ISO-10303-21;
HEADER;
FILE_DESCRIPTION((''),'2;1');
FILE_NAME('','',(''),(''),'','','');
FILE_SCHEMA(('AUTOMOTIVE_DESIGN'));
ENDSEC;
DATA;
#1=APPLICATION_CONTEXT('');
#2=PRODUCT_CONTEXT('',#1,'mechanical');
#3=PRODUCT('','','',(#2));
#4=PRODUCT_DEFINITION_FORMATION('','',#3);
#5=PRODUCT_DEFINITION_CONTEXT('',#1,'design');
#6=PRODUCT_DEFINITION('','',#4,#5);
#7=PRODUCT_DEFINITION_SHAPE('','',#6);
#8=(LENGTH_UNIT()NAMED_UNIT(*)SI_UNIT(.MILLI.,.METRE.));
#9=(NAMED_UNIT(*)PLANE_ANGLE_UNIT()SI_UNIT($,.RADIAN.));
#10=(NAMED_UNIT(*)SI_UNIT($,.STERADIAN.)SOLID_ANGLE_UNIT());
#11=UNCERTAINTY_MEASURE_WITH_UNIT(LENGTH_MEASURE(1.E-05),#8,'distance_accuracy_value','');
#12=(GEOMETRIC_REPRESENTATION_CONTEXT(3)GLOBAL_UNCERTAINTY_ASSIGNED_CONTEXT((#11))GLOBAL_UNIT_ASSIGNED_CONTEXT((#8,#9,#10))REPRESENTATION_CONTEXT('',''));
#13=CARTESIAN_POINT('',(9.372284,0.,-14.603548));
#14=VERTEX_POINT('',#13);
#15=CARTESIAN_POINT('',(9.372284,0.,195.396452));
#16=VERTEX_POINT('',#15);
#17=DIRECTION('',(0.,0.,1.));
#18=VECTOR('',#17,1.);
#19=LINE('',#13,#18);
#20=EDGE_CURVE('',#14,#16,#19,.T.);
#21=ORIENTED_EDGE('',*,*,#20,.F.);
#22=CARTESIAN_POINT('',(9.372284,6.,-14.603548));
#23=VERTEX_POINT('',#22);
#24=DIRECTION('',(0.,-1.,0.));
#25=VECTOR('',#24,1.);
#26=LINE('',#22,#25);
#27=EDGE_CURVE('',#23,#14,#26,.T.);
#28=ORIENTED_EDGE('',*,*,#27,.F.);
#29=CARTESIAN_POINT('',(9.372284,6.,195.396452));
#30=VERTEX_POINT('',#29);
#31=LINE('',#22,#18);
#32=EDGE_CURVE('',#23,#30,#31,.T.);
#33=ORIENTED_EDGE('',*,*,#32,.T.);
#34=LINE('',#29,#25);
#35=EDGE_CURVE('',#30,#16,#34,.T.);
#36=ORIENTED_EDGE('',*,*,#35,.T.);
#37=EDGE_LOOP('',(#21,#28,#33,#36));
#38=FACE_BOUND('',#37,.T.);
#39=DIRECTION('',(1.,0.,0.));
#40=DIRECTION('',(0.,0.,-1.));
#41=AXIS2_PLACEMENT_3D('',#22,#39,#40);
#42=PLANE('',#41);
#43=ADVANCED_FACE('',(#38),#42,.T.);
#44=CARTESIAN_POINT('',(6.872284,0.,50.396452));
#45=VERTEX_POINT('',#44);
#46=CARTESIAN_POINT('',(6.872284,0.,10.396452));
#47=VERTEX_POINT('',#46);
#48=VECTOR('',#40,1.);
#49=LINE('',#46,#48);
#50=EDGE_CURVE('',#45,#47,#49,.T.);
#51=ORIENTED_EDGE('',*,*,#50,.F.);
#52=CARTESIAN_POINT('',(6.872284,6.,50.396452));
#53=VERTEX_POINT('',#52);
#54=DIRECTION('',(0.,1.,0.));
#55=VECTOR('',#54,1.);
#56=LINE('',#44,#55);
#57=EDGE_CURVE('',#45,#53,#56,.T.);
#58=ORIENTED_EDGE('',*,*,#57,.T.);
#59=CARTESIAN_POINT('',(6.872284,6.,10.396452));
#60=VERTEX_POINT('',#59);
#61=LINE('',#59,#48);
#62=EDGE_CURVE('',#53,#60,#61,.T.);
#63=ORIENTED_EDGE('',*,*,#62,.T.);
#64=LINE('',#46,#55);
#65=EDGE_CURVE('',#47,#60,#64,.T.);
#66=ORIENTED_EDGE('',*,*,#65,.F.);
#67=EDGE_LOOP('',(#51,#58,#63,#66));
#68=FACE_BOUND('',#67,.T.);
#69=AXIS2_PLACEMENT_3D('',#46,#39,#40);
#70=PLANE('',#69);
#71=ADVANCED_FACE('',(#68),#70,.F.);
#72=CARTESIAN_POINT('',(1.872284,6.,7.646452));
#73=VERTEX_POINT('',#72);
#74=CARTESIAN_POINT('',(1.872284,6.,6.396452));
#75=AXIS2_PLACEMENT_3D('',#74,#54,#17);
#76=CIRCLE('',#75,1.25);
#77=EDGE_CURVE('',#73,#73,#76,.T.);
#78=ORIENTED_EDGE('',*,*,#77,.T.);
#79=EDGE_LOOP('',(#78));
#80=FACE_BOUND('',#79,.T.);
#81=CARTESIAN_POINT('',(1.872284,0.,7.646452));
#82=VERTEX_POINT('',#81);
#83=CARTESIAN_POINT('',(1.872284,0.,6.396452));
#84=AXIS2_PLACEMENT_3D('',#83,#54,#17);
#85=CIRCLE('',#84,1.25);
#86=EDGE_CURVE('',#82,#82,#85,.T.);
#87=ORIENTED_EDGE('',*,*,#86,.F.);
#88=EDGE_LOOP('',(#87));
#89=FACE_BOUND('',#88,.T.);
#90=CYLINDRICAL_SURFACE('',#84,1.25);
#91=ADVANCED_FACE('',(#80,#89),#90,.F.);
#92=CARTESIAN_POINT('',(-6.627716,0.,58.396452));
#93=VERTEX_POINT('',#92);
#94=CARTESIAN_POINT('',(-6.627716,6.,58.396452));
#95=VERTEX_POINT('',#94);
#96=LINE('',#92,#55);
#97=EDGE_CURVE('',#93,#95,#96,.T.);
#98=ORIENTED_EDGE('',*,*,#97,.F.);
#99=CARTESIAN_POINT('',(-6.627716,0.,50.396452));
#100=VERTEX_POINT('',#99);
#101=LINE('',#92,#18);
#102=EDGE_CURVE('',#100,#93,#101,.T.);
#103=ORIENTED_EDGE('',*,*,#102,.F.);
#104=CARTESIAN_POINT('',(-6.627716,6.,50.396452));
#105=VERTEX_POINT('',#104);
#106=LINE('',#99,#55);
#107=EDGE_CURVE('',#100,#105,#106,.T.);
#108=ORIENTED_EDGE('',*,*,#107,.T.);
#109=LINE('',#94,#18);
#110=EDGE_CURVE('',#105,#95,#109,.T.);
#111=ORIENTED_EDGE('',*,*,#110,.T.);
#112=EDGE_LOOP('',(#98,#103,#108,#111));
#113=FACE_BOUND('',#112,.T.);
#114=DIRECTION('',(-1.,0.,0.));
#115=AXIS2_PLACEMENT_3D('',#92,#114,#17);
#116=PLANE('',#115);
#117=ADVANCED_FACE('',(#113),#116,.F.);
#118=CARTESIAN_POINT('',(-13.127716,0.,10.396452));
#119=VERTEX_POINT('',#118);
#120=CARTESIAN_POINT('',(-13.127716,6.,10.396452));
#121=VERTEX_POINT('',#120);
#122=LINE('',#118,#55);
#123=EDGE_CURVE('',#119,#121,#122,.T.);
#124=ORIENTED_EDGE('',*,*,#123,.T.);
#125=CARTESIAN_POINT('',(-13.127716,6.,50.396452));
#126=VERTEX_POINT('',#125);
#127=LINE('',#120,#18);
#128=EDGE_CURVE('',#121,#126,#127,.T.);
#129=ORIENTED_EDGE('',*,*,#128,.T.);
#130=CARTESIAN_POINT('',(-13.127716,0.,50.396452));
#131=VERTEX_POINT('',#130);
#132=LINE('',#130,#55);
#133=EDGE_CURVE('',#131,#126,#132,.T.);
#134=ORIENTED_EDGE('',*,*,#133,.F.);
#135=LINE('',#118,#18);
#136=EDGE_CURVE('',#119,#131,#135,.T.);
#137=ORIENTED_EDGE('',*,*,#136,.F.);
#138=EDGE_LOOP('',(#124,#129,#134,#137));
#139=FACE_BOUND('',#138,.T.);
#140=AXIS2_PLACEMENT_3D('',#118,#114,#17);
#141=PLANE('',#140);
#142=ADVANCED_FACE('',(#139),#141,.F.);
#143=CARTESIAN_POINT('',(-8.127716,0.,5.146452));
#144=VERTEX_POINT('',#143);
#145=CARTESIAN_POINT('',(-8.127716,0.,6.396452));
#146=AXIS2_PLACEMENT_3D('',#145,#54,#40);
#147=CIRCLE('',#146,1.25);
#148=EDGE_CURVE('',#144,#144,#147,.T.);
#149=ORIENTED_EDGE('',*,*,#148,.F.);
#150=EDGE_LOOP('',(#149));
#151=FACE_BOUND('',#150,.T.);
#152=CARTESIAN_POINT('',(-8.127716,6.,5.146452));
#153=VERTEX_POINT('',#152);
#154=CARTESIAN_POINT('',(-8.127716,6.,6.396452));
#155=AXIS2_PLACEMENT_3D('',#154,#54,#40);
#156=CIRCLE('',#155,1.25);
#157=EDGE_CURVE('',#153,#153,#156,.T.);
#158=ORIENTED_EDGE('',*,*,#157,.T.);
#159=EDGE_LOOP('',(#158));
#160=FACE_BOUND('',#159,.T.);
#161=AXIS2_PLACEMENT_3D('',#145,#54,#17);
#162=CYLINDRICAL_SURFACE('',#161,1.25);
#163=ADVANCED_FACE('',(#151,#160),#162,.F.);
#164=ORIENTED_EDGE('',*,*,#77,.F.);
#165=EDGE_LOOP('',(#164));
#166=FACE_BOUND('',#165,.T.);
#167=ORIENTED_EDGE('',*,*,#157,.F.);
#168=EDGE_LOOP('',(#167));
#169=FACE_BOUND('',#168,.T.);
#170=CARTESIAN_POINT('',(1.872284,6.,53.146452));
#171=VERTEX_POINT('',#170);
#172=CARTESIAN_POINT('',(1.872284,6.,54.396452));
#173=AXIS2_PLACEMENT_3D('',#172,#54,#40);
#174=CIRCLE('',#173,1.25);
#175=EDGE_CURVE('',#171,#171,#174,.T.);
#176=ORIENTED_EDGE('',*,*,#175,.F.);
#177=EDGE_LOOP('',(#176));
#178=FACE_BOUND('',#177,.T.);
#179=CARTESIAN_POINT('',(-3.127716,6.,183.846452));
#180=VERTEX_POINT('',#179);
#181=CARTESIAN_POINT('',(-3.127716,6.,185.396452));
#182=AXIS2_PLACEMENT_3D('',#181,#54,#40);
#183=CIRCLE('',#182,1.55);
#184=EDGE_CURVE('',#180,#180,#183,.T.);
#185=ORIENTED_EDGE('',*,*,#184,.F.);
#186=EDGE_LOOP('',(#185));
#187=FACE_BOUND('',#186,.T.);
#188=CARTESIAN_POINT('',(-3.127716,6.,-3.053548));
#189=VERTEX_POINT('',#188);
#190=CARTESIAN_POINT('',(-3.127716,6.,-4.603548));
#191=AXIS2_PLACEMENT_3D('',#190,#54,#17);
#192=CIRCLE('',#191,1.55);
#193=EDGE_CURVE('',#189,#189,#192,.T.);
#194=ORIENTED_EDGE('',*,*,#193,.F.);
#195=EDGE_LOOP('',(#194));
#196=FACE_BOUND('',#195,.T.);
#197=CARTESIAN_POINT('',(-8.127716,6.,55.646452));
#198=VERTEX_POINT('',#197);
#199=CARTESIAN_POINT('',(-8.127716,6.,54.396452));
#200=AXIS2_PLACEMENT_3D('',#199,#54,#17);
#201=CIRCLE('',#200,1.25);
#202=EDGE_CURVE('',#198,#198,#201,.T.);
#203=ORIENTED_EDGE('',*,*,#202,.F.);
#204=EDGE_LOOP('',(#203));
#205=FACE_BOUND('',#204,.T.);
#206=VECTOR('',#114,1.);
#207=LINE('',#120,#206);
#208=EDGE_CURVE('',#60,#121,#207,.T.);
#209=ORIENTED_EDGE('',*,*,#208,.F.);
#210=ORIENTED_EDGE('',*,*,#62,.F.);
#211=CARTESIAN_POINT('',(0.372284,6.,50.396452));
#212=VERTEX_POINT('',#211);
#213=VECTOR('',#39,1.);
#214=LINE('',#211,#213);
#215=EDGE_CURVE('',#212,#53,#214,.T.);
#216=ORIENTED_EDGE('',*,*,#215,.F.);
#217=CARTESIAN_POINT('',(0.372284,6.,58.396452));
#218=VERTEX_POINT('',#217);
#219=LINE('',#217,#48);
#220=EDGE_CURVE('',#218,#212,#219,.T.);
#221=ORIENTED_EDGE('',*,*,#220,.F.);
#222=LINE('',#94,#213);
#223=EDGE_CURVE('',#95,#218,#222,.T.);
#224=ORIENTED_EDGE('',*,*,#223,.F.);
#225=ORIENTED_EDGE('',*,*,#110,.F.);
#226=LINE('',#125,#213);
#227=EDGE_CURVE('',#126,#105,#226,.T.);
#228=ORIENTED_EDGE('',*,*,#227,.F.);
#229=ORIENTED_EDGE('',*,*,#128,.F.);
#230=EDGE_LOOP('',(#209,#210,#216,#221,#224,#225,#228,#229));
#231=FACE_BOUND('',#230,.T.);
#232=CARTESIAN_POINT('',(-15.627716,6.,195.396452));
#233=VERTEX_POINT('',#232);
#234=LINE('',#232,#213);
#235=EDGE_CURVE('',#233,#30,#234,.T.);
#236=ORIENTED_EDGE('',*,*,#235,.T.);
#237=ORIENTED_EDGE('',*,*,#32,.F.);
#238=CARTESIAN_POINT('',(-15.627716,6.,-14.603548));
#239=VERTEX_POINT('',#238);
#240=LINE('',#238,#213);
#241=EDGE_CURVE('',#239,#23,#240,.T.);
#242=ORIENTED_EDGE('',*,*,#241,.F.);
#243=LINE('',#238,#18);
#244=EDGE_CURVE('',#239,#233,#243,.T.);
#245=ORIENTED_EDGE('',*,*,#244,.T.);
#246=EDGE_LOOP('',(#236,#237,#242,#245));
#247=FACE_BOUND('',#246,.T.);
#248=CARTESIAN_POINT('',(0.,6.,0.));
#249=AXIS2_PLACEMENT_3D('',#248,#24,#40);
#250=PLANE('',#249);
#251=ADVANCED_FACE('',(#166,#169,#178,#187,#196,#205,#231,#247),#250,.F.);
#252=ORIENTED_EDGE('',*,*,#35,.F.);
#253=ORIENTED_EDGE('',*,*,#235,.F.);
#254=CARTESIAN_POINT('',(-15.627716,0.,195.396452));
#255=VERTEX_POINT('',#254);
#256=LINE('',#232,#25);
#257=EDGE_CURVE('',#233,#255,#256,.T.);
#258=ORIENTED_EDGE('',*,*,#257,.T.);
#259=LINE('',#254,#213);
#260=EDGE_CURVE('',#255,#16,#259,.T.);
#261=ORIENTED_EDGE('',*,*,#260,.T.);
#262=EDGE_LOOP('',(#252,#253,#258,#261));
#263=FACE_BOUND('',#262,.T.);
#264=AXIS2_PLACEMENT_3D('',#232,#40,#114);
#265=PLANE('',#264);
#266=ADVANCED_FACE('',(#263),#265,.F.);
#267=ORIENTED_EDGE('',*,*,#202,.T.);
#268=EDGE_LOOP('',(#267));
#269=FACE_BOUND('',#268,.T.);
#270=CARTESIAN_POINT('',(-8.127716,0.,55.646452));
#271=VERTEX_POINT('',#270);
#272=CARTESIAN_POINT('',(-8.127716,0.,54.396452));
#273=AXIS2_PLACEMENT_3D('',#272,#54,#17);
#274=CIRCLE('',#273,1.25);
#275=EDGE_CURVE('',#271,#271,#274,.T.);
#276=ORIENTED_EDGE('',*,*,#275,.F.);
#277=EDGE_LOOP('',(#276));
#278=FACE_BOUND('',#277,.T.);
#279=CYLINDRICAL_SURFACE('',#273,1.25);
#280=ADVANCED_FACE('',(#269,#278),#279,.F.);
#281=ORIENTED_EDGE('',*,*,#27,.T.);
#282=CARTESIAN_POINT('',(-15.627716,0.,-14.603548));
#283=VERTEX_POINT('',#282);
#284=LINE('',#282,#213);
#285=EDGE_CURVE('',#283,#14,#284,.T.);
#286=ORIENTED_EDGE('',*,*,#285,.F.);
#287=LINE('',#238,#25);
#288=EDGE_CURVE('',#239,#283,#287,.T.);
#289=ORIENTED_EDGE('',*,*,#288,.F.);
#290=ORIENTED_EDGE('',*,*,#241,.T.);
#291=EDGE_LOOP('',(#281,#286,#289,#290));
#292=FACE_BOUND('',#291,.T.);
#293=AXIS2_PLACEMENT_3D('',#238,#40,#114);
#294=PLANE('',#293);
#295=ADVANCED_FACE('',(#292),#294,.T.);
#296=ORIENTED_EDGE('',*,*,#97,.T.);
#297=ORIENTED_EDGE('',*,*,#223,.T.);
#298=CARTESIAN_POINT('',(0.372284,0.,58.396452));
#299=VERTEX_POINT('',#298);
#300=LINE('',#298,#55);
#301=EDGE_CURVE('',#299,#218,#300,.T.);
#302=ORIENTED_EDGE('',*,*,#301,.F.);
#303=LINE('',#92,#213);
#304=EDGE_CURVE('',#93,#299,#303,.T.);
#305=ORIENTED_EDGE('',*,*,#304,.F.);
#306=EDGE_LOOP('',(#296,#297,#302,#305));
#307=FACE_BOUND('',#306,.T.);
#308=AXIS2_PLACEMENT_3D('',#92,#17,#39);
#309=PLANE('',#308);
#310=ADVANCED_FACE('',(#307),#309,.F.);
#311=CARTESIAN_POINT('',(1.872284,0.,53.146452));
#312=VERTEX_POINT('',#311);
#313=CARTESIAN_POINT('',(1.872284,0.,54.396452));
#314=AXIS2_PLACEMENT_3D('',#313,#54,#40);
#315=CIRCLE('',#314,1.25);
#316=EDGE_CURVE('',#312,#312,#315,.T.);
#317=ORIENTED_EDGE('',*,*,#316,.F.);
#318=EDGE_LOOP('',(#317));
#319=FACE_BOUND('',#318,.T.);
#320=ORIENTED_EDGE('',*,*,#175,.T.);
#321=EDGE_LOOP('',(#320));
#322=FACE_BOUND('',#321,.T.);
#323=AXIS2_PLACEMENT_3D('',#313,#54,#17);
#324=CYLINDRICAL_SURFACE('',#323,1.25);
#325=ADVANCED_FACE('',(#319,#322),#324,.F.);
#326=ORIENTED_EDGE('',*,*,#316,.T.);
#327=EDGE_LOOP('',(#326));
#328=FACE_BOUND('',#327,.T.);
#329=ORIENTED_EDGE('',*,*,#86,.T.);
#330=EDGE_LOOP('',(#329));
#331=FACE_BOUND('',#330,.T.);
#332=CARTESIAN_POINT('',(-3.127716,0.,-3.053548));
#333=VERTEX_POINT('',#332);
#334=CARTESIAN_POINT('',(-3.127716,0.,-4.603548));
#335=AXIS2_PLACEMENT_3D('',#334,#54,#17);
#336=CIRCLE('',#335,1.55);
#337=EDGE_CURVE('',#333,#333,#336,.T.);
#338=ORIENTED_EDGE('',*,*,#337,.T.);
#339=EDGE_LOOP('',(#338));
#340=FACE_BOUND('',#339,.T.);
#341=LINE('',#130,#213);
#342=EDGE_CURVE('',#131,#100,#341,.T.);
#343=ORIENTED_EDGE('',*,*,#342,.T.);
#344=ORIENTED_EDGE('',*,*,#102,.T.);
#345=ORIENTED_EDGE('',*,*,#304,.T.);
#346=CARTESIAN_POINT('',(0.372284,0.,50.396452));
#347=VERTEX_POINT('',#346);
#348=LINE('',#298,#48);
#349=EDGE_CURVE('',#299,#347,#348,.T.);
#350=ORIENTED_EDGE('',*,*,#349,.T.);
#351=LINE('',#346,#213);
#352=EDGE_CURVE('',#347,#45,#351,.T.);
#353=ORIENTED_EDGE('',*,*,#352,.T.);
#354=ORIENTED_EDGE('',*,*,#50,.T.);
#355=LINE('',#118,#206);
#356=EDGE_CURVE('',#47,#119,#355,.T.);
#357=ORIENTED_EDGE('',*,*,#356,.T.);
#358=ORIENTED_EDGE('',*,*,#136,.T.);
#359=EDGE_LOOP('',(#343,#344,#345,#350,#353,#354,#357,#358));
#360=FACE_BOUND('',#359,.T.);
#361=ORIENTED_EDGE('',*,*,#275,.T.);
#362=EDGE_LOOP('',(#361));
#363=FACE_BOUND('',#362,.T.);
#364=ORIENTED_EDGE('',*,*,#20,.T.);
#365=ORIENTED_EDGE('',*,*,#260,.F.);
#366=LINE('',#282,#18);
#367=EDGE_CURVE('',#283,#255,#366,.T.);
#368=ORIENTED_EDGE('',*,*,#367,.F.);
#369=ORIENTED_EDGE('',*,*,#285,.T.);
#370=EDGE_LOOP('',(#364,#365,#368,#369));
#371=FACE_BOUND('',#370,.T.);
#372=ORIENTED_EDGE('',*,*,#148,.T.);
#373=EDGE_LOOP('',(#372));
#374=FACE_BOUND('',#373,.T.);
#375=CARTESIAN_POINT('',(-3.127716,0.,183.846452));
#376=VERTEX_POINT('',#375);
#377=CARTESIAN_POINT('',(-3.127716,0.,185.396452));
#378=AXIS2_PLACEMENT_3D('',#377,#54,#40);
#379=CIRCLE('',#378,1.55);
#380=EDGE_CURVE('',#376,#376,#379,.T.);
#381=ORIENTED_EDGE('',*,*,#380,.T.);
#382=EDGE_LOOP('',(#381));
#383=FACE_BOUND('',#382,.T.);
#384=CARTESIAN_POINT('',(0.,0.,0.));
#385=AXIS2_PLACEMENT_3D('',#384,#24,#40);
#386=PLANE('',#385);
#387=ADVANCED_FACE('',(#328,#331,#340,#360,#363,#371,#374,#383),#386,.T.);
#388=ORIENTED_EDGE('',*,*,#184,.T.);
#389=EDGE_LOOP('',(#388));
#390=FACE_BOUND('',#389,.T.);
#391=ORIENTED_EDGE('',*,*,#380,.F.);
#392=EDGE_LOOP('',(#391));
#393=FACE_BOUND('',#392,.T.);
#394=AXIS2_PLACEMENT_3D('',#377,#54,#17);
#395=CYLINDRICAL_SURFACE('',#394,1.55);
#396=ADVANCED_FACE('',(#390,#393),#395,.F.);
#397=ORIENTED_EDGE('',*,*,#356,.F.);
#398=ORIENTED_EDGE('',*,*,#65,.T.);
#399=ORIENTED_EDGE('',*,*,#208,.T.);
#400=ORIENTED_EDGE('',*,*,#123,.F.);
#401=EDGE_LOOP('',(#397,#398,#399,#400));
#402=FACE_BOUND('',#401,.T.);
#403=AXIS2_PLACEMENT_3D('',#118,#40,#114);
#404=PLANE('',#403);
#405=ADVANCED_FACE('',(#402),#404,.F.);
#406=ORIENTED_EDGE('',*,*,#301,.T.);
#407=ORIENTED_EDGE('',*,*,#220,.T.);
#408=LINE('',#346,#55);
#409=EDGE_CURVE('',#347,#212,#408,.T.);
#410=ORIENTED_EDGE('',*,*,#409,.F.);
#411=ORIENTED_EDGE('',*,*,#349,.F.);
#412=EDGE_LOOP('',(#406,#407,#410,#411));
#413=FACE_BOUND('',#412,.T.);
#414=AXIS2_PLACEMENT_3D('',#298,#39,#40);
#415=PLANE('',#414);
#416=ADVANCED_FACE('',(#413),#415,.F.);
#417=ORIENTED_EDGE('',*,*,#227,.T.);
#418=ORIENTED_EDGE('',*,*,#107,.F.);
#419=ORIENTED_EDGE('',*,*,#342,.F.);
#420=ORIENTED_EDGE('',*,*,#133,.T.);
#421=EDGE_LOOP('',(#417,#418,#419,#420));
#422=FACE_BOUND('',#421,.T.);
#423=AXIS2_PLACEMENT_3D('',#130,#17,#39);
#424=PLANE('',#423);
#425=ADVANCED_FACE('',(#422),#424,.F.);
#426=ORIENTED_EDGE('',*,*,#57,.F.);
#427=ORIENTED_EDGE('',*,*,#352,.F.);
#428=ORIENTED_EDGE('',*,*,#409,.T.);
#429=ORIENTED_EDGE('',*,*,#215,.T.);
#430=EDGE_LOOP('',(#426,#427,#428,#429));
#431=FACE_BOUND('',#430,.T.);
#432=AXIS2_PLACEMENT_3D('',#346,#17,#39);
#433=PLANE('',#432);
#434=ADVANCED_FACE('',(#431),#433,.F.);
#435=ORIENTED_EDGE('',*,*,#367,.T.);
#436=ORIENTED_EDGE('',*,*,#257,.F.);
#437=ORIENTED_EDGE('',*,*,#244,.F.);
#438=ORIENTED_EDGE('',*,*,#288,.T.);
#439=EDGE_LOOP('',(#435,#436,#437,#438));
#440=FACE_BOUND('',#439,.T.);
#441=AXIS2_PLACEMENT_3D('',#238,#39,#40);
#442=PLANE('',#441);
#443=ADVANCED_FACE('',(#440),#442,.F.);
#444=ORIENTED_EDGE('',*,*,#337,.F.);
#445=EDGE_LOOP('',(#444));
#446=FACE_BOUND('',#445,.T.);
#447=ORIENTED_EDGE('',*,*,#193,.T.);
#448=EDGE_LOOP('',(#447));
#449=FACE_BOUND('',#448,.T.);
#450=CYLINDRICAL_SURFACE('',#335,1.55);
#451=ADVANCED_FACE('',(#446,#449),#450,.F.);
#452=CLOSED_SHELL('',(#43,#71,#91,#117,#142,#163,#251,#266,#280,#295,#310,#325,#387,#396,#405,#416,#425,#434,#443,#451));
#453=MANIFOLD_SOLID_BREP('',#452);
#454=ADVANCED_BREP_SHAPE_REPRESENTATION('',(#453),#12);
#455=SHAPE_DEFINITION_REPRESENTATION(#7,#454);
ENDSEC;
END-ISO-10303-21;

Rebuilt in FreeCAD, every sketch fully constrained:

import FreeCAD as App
import Part
import Sketcher

V = App.Vector


def add_polygon(sketch, points):
    """Adds a closed chain of lines whose ends are joined by coincident constraints."""
    first, n = sketch.GeometryCount, len(points)
    for a, b in zip(points, points[1:] + points[:1]):
        sketch.addGeometry(Part.LineSegment(App.Vector(*a, 0), App.Vector(*b, 0)), False)
    for i in range(n):
        sketch.addConstraint(Sketcher.Constraint("Coincident", first + i, 2, first + (i + 1) % n, 1))

doc = App.newDocument("Part")
body = doc.addObject("PartDesign::Body", "Body")

sketch1 = body.newObject("Sketcher::SketchObject", "Sketch")
sketch1.AttachmentSupport = (doc.getObject("XZ_Plane"), [""])
sketch1.MapMode = "FlatFace"
add_polygon(sketch1, [(-16, -15), (-16, 195), (9, 195), (9, -15)])
sketch1.addConstraint([
    Sketcher.Constraint("Vertical", 0),
    Sketcher.Constraint("Horizontal", 1),
    Sketcher.Constraint("Vertical", 2),
    Sketcher.Constraint("Horizontal", 3),
    Sketcher.Constraint("DistanceX", 1, 1, 1, 2, 25.0),
    Sketcher.Constraint("DistanceY", 0, 1, 0, 2, 210.0),
    Sketcher.Constraint("DistanceY", -1, 1, 0, 2, 195.396452),
    Sketcher.Constraint("DistanceX", 0, 2, -1, 1, 15.627716),
])
pad1 = body.newObject("PartDesign::Pad", "Pad")
pad1.Profile = sketch1
pad1.Length = 6
pad1.Reversed = True

sketch2 = body.newObject("Sketcher::SketchObject", "Sketch001")
sketch2.AttachmentSupport = (doc.getObject("XZ_Plane"), [""])
sketch2.MapMode = "FlatFace"
sketch2.AttachmentOffset = App.Placement(V(0, 0, -6), App.Rotation())
sketch2.addGeometry([
    Part.Circle(V(-3.1, -4.6, 0), V(0, 0, 1), 1.6),
    Part.Circle(V(-3.1, 185.4, 0), V(0, 0, 1), 1.6),
], False)
sketch2.addConstraint([
    Sketcher.Constraint("Equal", 0, 1),
    Sketcher.Constraint("Vertical", 0, 3, 1, 3),
    Sketcher.Constraint("Diameter", 0, 3.1),
    Sketcher.Constraint("DistanceY", 0, 3, 1, 3, 190.0),
    Sketcher.Constraint("DistanceY", 0, 3, -1, 1, 4.603548),
    Sketcher.Constraint("DistanceX", 0, 3, -1, 1, 3.127716),
])
pocket1 = body.newObject("PartDesign::Pocket", "Pocket")
pocket1.Profile = sketch2
pocket1.Length = 6
pocket1.Reversed = True

sketch3 = body.newObject("Sketcher::SketchObject", "Sketch002")
sketch3.AttachmentSupport = (doc.getObject("XZ_Plane"), [""])
sketch3.MapMode = "FlatFace"
sketch3.AttachmentOffset = App.Placement(V(0, 0, -6), App.Rotation())
sketch3.addGeometry(Part.Circle(V(-8.1, 54.4, 0), V(0, 0, 1), 1.2), False)
sketch3.addGeometry(Part.Circle(V(1.9, 54.4, 0), V(0, 0, 1), 1.2), False)
sketch3.addGeometry(Part.Circle(V(1.9, 6.4, 0), V(0, 0, 1), 1.2), False)
sketch3.addGeometry(Part.Circle(V(-8.1, 6.4, 0), V(0, 0, 1), 1.2), False)
add_polygon(sketch3, [(6.9, 10.4), (-13.1, 10.4), (-13.1, 50.4), (-6.6, 50.4), (-6.6, 58.4), (0.4, 58.4), (0.4, 50.4), (6.9, 50.4)])
sketch3.addConstraint([
    Sketcher.Constraint("Horizontal", 4),
    Sketcher.Constraint("Vertical", 5),
    Sketcher.Constraint("Horizontal", 6),
    Sketcher.Constraint("Vertical", 7),
    Sketcher.Constraint("Horizontal", 8),
    Sketcher.Constraint("Vertical", 9),
    Sketcher.Constraint("Horizontal", 10),
    Sketcher.Constraint("Vertical", 11),
    Sketcher.Constraint("Equal", 0, 1),
    Sketcher.Constraint("Equal", 1, 2),
    Sketcher.Constraint("Equal", 2, 3),
    Sketcher.Constraint("Horizontal", 0, 3, 1, 3),
    Sketcher.Constraint("Horizontal", 2, 3, 3, 3),
    Sketcher.Constraint("Horizontal", 6, 2, 9, 2),
    Sketcher.Constraint("Vertical", 1, 3, 2, 3),
    Sketcher.Constraint("Vertical", 0, 3, 3, 3),
    Sketcher.Constraint("Equal", 6, 10),
    Sketcher.Constraint("Diameter", 0, 2.5),
    Sketcher.Constraint("DistanceX", 4, 2, 4, 1, 20.0),
    Sketcher.Constraint("DistanceX", 8, 1, 8, 2, 7.0),
    Sketcher.Constraint("DistanceY", 5, 1, 5, 2, 40.0),
    Sketcher.Constraint("DistanceY", 7, 1, 7, 2, 8.0),
    Sketcher.Constraint("DistanceX", 0, 3, 1, 3, 10.0),
    Sketcher.Constraint("DistanceY", 2, 3, 1, 3, 48.0),
    Sketcher.Constraint("DistanceX", 4, 2, 3, 3, 5.0),
    Sketcher.Constraint("DistanceY", 3, 3, 4, 2, 4.0),
    Sketcher.Constraint("DistanceY", -1, 1, 0, 3, 54.396452),
    Sketcher.Constraint("DistanceX", 0, 3, -1, 1, 8.127716),
])
pocket2 = body.newObject("PartDesign::Pocket", "Pocket001")
pocket2.Profile = sketch3
pocket2.Length = 6
pocket2.Reversed = True

doc.recompute()
